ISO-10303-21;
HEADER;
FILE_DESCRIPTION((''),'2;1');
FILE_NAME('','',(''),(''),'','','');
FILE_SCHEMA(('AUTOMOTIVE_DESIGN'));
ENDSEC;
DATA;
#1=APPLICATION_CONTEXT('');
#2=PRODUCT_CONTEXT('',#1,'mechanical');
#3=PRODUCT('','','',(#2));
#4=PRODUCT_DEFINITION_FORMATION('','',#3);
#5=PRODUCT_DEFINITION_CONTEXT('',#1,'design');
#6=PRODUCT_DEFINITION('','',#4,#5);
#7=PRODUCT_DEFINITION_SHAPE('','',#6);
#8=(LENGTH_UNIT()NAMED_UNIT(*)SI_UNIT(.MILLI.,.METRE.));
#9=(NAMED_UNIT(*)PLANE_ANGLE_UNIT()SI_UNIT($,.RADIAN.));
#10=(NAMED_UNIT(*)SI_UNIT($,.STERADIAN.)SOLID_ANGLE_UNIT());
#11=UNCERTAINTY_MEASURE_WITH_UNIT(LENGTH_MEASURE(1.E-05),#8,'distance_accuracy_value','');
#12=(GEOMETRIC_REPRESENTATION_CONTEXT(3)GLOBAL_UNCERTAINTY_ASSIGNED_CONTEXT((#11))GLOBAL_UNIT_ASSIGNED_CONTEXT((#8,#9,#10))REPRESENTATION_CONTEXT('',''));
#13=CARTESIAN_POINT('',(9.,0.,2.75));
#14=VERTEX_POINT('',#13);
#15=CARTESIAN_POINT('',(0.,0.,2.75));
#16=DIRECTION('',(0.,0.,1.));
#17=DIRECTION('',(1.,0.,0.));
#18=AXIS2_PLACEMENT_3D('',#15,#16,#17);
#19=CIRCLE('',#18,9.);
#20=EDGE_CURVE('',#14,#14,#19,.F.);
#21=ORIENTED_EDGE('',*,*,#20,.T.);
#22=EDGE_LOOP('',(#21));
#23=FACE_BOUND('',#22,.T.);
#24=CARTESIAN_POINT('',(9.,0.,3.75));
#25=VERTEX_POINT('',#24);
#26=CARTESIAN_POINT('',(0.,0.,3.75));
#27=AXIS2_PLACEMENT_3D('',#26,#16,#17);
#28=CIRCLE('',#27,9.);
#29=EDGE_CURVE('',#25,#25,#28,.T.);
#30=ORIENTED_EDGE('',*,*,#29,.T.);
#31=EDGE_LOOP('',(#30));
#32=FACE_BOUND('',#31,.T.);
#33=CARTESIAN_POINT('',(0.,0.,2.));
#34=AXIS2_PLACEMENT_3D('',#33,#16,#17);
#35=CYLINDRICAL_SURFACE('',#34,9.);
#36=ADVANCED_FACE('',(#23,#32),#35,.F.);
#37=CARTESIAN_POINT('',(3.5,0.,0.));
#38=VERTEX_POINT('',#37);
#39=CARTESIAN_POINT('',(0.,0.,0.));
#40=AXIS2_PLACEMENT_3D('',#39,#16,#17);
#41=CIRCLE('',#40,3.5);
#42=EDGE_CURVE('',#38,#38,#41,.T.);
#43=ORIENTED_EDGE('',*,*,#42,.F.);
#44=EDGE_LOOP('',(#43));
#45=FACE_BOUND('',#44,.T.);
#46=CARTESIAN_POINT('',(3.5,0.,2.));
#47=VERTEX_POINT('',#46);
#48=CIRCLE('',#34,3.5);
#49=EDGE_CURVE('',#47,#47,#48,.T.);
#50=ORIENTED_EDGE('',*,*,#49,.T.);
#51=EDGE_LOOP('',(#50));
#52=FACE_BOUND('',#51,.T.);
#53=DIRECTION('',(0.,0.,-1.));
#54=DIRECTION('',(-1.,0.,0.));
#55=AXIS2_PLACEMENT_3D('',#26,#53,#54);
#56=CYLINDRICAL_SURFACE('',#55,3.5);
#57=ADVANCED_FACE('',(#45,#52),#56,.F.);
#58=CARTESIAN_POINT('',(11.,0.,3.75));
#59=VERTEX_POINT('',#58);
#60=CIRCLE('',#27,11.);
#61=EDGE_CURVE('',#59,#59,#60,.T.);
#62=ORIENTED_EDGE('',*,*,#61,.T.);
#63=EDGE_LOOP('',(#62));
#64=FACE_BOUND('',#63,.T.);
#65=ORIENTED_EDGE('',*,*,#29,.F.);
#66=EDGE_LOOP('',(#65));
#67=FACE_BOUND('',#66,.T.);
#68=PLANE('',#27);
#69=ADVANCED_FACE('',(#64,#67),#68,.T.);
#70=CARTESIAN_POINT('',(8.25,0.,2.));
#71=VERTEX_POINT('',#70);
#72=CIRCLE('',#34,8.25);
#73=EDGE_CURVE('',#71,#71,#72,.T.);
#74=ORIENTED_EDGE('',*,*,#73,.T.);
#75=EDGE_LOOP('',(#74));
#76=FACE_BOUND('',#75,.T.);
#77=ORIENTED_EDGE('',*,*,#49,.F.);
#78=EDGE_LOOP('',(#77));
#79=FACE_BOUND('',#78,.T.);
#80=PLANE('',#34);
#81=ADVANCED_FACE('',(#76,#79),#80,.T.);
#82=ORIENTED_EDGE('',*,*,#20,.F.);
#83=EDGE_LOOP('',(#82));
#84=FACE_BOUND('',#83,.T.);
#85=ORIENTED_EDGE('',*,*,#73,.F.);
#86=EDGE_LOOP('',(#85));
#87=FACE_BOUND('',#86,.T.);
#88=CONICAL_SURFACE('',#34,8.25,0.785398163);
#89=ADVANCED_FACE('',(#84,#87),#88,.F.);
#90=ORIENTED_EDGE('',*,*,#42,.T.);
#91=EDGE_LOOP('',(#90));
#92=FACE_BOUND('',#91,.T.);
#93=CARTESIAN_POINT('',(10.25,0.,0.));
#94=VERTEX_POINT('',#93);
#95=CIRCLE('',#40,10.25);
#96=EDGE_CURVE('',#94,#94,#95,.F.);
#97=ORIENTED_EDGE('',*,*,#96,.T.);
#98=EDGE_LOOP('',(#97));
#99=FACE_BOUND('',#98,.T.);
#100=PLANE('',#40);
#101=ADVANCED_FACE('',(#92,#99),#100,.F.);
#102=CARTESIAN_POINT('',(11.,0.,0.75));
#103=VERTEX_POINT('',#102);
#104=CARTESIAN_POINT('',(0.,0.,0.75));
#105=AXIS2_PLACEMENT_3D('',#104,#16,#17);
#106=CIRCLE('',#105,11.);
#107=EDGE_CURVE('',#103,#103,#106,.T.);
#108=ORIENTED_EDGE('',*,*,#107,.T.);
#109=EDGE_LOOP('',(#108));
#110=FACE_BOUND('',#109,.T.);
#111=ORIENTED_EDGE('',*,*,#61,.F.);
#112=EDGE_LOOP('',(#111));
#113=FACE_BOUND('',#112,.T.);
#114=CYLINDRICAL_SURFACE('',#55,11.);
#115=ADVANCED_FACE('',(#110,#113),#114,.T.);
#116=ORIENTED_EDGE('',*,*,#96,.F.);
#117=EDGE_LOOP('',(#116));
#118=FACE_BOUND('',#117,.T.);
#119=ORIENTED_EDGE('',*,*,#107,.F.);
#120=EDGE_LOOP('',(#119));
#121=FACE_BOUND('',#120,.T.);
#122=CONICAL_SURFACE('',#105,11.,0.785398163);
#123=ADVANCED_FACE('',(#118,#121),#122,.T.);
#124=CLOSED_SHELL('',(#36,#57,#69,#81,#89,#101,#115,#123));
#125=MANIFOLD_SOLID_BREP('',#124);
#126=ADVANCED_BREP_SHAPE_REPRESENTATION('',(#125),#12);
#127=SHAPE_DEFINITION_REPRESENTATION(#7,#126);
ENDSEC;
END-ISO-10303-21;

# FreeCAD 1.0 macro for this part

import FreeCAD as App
import Part
import Sketcher
from FreeCAD import Vector
Q = App.Units.Quantity


def edges_at(feature, points):
    """Names of the edges that pass closest to the given points."""
    edges = feature.Shape.Edges
    near = lambda p: min(range(len(edges)), key=lambda i: edges[i].distToShape(Part.Vertex(*p))[0])
    return sorted({f"Edge{near(p) + 1}" for p in points})

doc = App.newDocument("Part")
body = doc.addObject("PartDesign::Body", "Body")

sketch1 = doc.addObject("Sketcher::SketchObject", "Sketch")
body.addObject(sketch1)
sketch1.AttachmentSupport = (doc.XY_Plane, [""])
sketch1.MapMode = "FlatFace"
sketch1.addGeometry([
    Part.Circle(Vector(0, 0, 0), Vector(0, 0, 1), 11),
    Part.Circle(Vector(0, 0, 0), Vector(0, 0, 1), 3.5),
], False)
sketch1.addConstraint([
    Sketcher.Constraint("Coincident", 0, 3, -1, 1),
    Sketcher.Constraint("Coincident", 1, 3, -1, 1),
    Sketcher.Constraint("Diameter", 0, Q("22 mm")),
    Sketcher.Constraint("Diameter", 1, Q("7 mm")),
])
pad1 = doc.addObject("PartDesign::Pad", "Pad")
body.addObject(pad1)
pad1.Profile = sketch1
pad1.Length = 3.75
doc.recompute()

chamfer = doc.addObject("PartDesign::Chamfer", "Chamfer")
body.addObject(chamfer)
chamfer.Base = (pad1, edges_at(pad1, [(-11, 0, 0)]))
chamfer.Size = 0.75

sketch2 = doc.addObject("Sketcher::SketchObject", "Sketch001")
body.addObject(sketch2)
sketch2.AttachmentSupport = (doc.XY_Plane, [""])
sketch2.MapMode = "FlatFace"
sketch2.AttachmentOffset = App.Placement(Vector(0, 0, 3.75), App.Rotation())
sketch2.addGeometry(Part.Circle(Vector(0, 0, 0), Vector(0, 0, 1), 9), False)
sketch2.addConstraint([
    Sketcher.Constraint("Coincident", 0, 3, -1, 1),
    Sketcher.Constraint("Diameter", 0, Q("18 mm")),
])
pocket1 = doc.addObject("PartDesign::Pocket", "Pocket")
body.addObject(pocket1)
pocket1.Profile = sketch2
pocket1.Length = 1.75
doc.recompute()

chamfer2 = doc.addObject("PartDesign::Chamfer", "Chamfer001")
body.addObject(chamfer2)
chamfer2.Base = (pocket1, edges_at(pocket1, [(-9, 0, 2)]))
chamfer2.Size = 0.75

doc.recompute()
